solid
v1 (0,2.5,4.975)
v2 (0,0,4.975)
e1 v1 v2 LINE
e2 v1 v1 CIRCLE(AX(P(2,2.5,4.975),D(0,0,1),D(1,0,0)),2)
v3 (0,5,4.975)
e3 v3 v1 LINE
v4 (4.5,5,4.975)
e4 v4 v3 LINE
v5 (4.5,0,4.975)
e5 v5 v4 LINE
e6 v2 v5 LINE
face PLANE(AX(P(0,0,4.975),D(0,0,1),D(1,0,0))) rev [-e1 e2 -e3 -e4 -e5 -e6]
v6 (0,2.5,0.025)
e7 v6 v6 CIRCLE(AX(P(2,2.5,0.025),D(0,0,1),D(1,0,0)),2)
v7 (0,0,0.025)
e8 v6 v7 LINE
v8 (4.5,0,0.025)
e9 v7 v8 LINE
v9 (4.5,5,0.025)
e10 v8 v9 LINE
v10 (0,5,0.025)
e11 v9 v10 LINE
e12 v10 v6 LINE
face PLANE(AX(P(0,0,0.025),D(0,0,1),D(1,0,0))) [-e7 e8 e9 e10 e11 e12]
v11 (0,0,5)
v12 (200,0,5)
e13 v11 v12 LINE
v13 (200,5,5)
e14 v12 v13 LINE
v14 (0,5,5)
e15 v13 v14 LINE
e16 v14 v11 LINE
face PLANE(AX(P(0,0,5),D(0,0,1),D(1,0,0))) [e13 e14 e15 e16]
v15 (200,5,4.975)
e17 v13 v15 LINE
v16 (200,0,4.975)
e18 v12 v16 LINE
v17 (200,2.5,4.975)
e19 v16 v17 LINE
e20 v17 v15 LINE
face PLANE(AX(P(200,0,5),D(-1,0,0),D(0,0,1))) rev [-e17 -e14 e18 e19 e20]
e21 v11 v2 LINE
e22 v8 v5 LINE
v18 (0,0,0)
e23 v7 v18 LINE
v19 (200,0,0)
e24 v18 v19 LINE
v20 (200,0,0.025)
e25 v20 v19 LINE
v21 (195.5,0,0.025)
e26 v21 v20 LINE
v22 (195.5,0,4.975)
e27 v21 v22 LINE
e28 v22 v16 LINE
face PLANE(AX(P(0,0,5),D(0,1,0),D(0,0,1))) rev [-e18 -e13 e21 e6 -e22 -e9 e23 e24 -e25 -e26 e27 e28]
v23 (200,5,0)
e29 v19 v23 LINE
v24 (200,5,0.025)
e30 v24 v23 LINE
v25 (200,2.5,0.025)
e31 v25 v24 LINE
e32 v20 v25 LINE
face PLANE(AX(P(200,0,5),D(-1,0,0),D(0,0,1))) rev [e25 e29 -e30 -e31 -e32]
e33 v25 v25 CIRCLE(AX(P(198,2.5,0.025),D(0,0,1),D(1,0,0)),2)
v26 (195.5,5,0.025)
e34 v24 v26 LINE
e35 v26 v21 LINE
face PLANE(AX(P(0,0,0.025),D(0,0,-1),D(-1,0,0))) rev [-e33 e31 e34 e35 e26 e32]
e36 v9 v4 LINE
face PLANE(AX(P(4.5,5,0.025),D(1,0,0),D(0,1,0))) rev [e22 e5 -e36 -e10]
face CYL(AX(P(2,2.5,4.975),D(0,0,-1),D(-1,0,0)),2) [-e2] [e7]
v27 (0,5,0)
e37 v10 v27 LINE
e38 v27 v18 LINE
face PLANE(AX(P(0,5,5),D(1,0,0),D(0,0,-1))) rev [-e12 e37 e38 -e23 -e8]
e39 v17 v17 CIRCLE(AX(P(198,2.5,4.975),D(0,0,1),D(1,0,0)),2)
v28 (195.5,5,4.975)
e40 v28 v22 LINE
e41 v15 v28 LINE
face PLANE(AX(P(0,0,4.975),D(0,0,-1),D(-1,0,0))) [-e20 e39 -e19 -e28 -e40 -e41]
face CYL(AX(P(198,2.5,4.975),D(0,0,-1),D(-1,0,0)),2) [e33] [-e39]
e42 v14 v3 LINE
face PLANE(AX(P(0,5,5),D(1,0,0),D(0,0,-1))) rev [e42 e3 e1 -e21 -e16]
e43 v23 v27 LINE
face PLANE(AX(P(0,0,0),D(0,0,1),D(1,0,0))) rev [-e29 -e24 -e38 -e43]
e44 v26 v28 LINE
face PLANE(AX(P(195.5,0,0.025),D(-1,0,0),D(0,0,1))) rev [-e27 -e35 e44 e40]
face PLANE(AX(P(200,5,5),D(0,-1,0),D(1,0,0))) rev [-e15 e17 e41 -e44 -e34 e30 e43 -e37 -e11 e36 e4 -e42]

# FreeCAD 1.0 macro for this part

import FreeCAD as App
import Part
import Sketcher
from FreeCAD import Vector

doc = App.newDocument("Part")
body = doc.addObject("PartDesign::Body", "Body")

# Sketch on XY plane
sketch1 = doc.addObject("Sketcher::SketchObject", "Sketch")
body.addObject(sketch1)
sketch1.AttachmentSupport = (doc.XY_Plane, [""])
sketch1.MapMode = "FlatFace"
sketch1.addGeometry(Part.LineSegment(Vector(0, 5, 0), Vector(0, 0, 0)), False)
sketch1.addGeometry(Part.LineSegment(Vector(0, 0, 0), Vector(200, 0, 0)), False)
sketch1.addGeometry(Part.LineSegment(Vector(200, 0, 0), Vector(200, 5, 0)), False)
sketch1.addGeometry(Part.LineSegment(Vector(200, 5, 0), Vector(0, 5, 0)), False)
sketch1.addConstraint(Sketcher.Constraint("Coincident", 0, 2, 1, 1))
sketch1.addConstraint(Sketcher.Constraint("Coincident", 1, 2, 2, 1))
sketch1.addConstraint(Sketcher.Constraint("Coincident", 2, 2, 3, 1))
sketch1.addConstraint(Sketcher.Constraint("Coincident", 3, 2, 0, 1))
sketch1.addConstraint(Sketcher.Constraint("Vertical", 0))
sketch1.addConstraint(Sketcher.Constraint("Horizontal", 1))
sketch1.addConstraint(Sketcher.Constraint("Vertical", 2))
sketch1.addConstraint(Sketcher.Constraint("Horizontal", 3))
sketch1.addConstraint(Sketcher.Constraint("Coincident", 0, 2, -1, 1))
sketch1.addConstraint(Sketcher.Constraint("DistanceX", 1, 1, 1, 2, 200.0))
sketch1.addConstraint(Sketcher.Constraint("DistanceY", 0, 2, 0, 1, 5.0))
pad1 = doc.addObject("PartDesign::Pad", "Pad")
body.addObject(pad1)
pad1.Profile = sketch1
pad1.Length = 5

# Sketch on XY plane
sketch2 = doc.addObject("Sketcher::SketchObject", "Sketch001")
body.addObject(sketch2)
sketch2.AttachmentSupport = (doc.XY_Plane, [""])
sketch2.MapMode = "FlatFace"
sketch2.AttachmentOffset = App.Placement(Vector(0, 0, 2.5), App.Rotation())
sketch2.addGeometry(Part.LineSegment(Vector(0, 5, 0), Vector(0, 0, 0)), False)
sketch2.addGeometry(Part.LineSegment(Vector(0, 0, 0), Vector(4.5, 0, 0)), False)
sketch2.addGeometry(Part.LineSegment(Vector(4.5, 0, 0), Vector(4.5, 5, 0)), False)
sketch2.addGeometry(Part.LineSegment(Vector(4.5, 5, 0), Vector(0, 5, 0)), False)
sketch2.addGeometry(Part.LineSegment(Vector(195.5, 5, 0), Vector(195.5, 0, 0)), False)
sketch2.addGeometry(Part.LineSegment(Vector(195.5, 0, 0), Vector(200, 0, 0)), False)
sketch2.addGeometry(Part.LineSegment(Vector(200, 0, 0), Vector(200, 5, 0)), False)
sketch2.addGeometry(Part.LineSegment(Vector(200, 5, 0), Vector(195.5, 5, 0)), False)
sketch2.addConstraint(Sketcher.Constraint("Coincident", 0, 2, 1, 1))
sketch2.addConstraint(Sketcher.Constraint("Coincident", 1, 2, 2, 1))
sketch2.addConstraint(Sketcher.Constraint("Coincident", 2, 2, 3, 1))
sketch2.addConstraint(Sketcher.Constraint("Coincident", 3, 2, 0, 1))
sketch2.addConstraint(Sketcher.Constraint("Coincident", 4, 2, 5, 1))
sketch2.addConstraint(Sketcher.Constraint("Coincident", 5, 2, 6, 1))
sketch2.addConstraint(Sketcher.Constraint("Coincident", 6, 2, 7, 1))
sketch2.addConstraint(Sketcher.Constraint("Coincident", 7, 2, 4, 1))
sketch2.addConstraint(Sketcher.Constraint("Vertical", 0))
sketch2.addConstraint(Sketcher.Constraint("Horizontal", 1))
sketch2.addConstraint(Sketcher.Constraint("Vertical", 2))
sketch2.addConstraint(Sketcher.Constraint("Horizontal", 3))
sketch2.addConstraint(Sketcher.Constraint("Vertical", 4))
sketch2.addConstraint(Sketcher.Constraint("Horizontal", 5))
sketch2.addConstraint(Sketcher.Constraint("Vertical", 6))
sketch2.addConstraint(Sketcher.Constraint("Horizontal", 7))
sketch2.addConstraint(Sketcher.Constraint("Coincident", 0, 2, -1, 1))
sketch2.addConstraint(Sketcher.Constraint("PointOnObject", 4, 2, -1))
sketch2.addConstraint(Sketcher.Constraint("Horizontal", 3, 2, 6, 2))
sketch2.addConstraint(Sketcher.Constraint("Equal", 3, 5))
sketch2.addConstraint(Sketcher.Constraint("DistanceY", 0, 2, 0, 1, 5.0))
sketch2.addConstraint(Sketcher.Constraint("DistanceX", 1, 1, 1, 2, 4.5))
sketch2.addConstraint(Sketcher.Constraint("DistanceX", -1, 1, 5, 2, 200.0))
pocket1 = doc.addObject("PartDesign::Pocket", "Pocket")
body.addObject(pocket1)
pocket1.Profile = sketch2
pocket1.Length = 4.95
pocket1.Midplane = True

# Sketch on XY plane
sketch3 = doc.addObject("Sketcher::SketchObject", "Sketch002")
body.addObject(sketch3)
sketch3.AttachmentSupport = (doc.XY_Plane, [""])
sketch3.MapMode = "FlatFace"
sketch3.AttachmentOffset = App.Placement(Vector(0, 0, 0.025), App.Rotation())
sketch3.addGeometry(Part.Circle(Vector(2, 2.5, 0), Vector(0, 0, 1), 2), False)
sketch3.addConstraint(Sketcher.Constraint("Diameter", 0, 4.0))
sketch3.addConstraint(Sketcher.Constraint("DistanceX", -1, 1, 0, 3, 2.0))
sketch3.addConstraint(Sketcher.Constraint("DistanceY", -1, 1, 0, 3, 2.5))
pad2 = doc.addObject("PartDesign::Pad", "Pad001")
body.addObject(pad2)
pad2.Profile = sketch3
pad2.Length = 4.95

# Sketch on XY plane
sketch4 = doc.addObject("Sketcher::SketchObject", "Sketch003")
body.addObject(sketch4)
sketch4.AttachmentSupport = (doc.XY_Plane, [""])
sketch4.MapMode = "FlatFace"
sketch4.AttachmentOffset = App.Placement(Vector(0, 0, 0.025), App.Rotation())
sketch4.addGeometry(Part.Circle(Vector(198, 2.5, 0), Vector(0, 0, 1), 2), False)
sketch4.addConstraint(Sketcher.Constraint("Diameter", 0, 4.0))
sketch4.addConstraint(Sketcher.Constraint("DistanceX", -1, 1, 0, 3, 198.0))
sketch4.addConstraint(Sketcher.Constraint("DistanceY", -1, 1, 0, 3, 2.5))
pad3 = doc.addObject("PartDesign::Pad", "Pad002")
body.addObject(pad3)
pad3.Profile = sketch4
pad3.Length = 4.95

doc.recompute()
